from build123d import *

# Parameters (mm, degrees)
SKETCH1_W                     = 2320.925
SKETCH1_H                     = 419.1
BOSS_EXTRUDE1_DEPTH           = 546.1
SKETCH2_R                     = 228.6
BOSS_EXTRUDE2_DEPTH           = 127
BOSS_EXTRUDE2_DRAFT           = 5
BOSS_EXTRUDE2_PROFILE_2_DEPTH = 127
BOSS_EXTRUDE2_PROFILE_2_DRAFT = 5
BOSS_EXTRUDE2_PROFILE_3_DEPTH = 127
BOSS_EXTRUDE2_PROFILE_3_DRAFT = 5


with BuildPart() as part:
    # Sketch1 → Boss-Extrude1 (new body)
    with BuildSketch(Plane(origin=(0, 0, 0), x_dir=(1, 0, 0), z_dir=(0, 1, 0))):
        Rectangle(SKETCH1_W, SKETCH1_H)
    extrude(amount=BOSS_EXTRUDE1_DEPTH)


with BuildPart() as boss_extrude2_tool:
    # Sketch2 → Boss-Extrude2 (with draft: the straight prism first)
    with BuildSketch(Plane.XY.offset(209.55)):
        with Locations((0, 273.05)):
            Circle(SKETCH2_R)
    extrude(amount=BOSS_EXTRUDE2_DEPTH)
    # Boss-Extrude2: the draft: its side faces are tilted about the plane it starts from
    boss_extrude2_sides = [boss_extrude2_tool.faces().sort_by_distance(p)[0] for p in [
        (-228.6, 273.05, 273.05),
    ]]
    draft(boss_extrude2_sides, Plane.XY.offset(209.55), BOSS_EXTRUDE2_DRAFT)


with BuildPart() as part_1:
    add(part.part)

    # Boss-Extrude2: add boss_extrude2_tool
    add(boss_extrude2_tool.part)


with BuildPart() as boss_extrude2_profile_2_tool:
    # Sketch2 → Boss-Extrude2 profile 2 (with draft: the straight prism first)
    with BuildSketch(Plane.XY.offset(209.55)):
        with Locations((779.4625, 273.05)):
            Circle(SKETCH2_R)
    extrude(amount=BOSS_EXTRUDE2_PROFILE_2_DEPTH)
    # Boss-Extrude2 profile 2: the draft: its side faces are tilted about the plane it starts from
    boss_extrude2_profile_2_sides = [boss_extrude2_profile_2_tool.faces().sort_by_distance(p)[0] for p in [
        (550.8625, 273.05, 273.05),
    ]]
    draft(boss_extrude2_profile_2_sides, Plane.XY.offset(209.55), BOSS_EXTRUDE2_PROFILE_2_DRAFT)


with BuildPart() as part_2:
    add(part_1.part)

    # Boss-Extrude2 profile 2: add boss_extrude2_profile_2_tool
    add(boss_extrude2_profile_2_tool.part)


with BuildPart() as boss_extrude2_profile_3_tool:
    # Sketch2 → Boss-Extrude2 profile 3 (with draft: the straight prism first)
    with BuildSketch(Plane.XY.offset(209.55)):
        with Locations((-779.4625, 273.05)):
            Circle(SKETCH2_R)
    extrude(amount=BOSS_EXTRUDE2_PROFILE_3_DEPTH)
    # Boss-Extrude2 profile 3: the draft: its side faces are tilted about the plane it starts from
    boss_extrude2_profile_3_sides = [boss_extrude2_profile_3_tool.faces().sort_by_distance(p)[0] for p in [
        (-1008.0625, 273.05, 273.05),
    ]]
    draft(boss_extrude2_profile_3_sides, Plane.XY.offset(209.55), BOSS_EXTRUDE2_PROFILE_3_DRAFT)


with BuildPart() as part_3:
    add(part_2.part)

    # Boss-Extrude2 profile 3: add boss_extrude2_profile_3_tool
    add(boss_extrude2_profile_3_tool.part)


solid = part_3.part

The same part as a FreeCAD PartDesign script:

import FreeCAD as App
import Part
import Sketcher
Q = App.Units.Quantity


def faces_at(feature, points):
    """Names of the faces that lie closest to the given points."""
    faces = feature.Shape.Faces
    near = lambda p: min(range(len(faces)), key=lambda i: faces[i].distToShape(Part.Vertex(*p))[0])
    return sorted({f"Face{near(p) + 1}" for p in points})

doc = App.newDocument("Part")
params = doc.addObject("Spreadsheet::Sheet", "Params")
for row, (alias, value) in enumerate([
    ("sketch1_height", "16.5 in"),
    ("sketch1_width", "91.375 in"),
    ("pad1_length", "21.5 in"),
    ("sketch2_diameter", "18 in"),
    ("pad2_length", "5 in"),
    ("draft_angle", "5 deg"),
    ("sketch3_diameter", "18 in"),
    ("pad3_length", "5 in"),
    ("draft2_angle", "5 deg"),
    ("sketch4_diameter", "18 in"),
    ("pad4_length", "5 in"),
    ("draft3_angle", "5 deg"),
], start=1):
    params.set(f"A{row}", alias)
    params.set(f"B{row}", "=" + value)
    params.setAlias(f"B{row}", alias)

body = doc.addObject("PartDesign::Body", "Body")

# Sketch on XZ plane
sketch1 = body.newObject("Sketcher::SketchObject", "Sketch")
sketch1.AttachmentSupport = (doc.getObject("XZ_Plane"), [""])
sketch1.MapMode = "FlatFace"
sketch1.addGeometry(Part.LineSegment(App.Vector(-1160, -210, 0), App.Vector(-1160, 210, 0)), False)
sketch1.addGeometry(Part.LineSegment(App.Vector(-1160, 210, 0), App.Vector(1160, 210, 0)), False)
sketch1.addGeometry(Part.LineSegment(App.Vector(1160, 210, 0), App.Vector(1160, -210, 0)), False)
sketch1.addGeometry(Part.LineSegment(App.Vector(1160, -210, 0), App.Vector(-1160, -210, 0)), False)
sketch1.addConstraint(Sketcher.Constraint("Coincident", 0, 2, 1, 1))
sketch1.addConstraint(Sketcher.Constraint("Coincident", 1, 2, 2, 1))
sketch1.addConstraint(Sketcher.Constraint("Coincident", 2, 2, 3, 1))
sketch1.addConstraint(Sketcher.Constraint("Coincident", 3, 2, 0, 1))
sketch1.addConstraint(Sketcher.Constraint("Vertical", 0))
sketch1.addConstraint(Sketcher.Constraint("Horizontal", 1))
sketch1.addConstraint(Sketcher.Constraint("Vertical", 2))
sketch1.addConstraint(Sketcher.Constraint("Horizontal", 3))
sketch1.addConstraint(Sketcher.Constraint("Symmetric", 0, 2, 2, 2, -1, 1))
sketch1.addConstraint(Sketcher.Constraint("DistanceY", 0, 1, 0, 2, Q("16.5 in")))
sketch1.addConstraint(Sketcher.Constraint("DistanceX", 1, 1, 1, 2, Q("91.375 in")))
sketch1.setExpression("Constraints[9]", "Params.sketch1_height")
sketch1.setExpression("Constraints[10]", "Params.sketch1_width")
pad1 = body.newObject("PartDesign::Pad", "Pad")
pad1.Profile = sketch1
pad1.setExpression("Length", "Params.pad1_length")
pad1.Reversed = True
body2 = doc.addObject("PartDesign::Body", "Body001")

# Sketch on XY plane
sketch2 = body2.newObject("Sketcher::SketchObject", "Sketch001")
sketch2.AttachmentSupport = (doc.getObject("XY_Plane001"), [""])
sketch2.MapMode = "FlatFace"
sketch2.AttachmentOffset = App.Placement(App.Vector(0, 0, 8.25 * 25.4), App.Rotation())
sketch2.addGeometry(Part.Circle(App.Vector(0, 273, 0), App.Vector(0, 0, 1), 229), False)
sketch2.addConstraint(Sketcher.Constraint("PointOnObject", 0, 3, -2))
sketch2.addConstraint(Sketcher.Constraint("Diameter", 0, Q("18 in")))
sketch2.addConstraint(Sketcher.Constraint("DistanceY", -1, 1, 0, 3, Q("10.75 in")))
sketch2.setExpression("Constraints[1]", "Params.sketch2_diameter")
pad2 = body2.newObject("PartDesign::Pad", "Pad001")
pad2.Profile = sketch2
pad2.setExpression("Length", "Params.pad2_length")
doc.recompute()

datumplane = body2.newObject("PartDesign::Plane", "DatumPlane")
datumplane.AttachmentSupport = (doc.getObject("XY_Plane001"), [""])
datumplane.MapMode = "FlatFace"
datumplane.AttachmentOffset = App.Placement(App.Vector(0, 0, 8.25 * 25.4), App.Rotation())
draft = body2.newObject("PartDesign::Draft", "Draft")
draft.Base = (pad2, faces_at(pad2, [(-228.6, 273.05, 273.05)]))
draft.NeutralPlane = (datumplane, [""])
draft.setExpression("Angle", "Params.draft_angle")
draft.Reversed = False
doc.recompute()

boolean = body.newObject("PartDesign::Boolean", "Boolean")
boolean.Type = "Fuse"
boolean.addObjects([body2])
body3 = doc.addObject("PartDesign::Body", "Body002")

# Sketch on XY plane
sketch3 = body3.newObject("Sketcher::SketchObject", "Sketch002")
sketch3.AttachmentSupport = (doc.getObject("XY_Plane002"), [""])
sketch3.MapMode = "FlatFace"
sketch3.AttachmentOffset = App.Placement(App.Vector(0, 0, 8.25 * 25.4), App.Rotation())
sketch3.addGeometry(Part.Circle(App.Vector(779, 273, 0), App.Vector(0, 0, 1), 229), False)
sketch3.addConstraint(Sketcher.Constraint("Diameter", 0, Q("18 in")))
sketch3.addConstraint(Sketcher.Constraint("DistanceY", -1, 1, 0, 3, Q("10.75 in")))
sketch3.addConstraint(Sketcher.Constraint("DistanceX", -1, 1, 0, 3, Q("30.6875 in")))
sketch3.setExpression("Constraints[0]", "Params.sketch3_diameter")
pad3 = body3.newObject("PartDesign::Pad", "Pad002")
pad3.Profile = sketch3
pad3.setExpression("Length", "Params.pad3_length")
doc.recompute()

datumplane2 = body3.newObject("PartDesign::Plane", "DatumPlane001")
datumplane2.AttachmentSupport = (doc.getObject("XY_Plane002"), [""])
datumplane2.MapMode = "FlatFace"
datumplane2.AttachmentOffset = App.Placement(App.Vector(0, 0, 8.25 * 25.4), App.Rotation())
draft2 = body3.newObject("PartDesign::Draft", "Draft001")
draft2.Base = (pad3, faces_at(pad3, [(550.862, 273.05, 273.05)]))
draft2.NeutralPlane = (datumplane2, [""])
draft2.setExpression("Angle", "Params.draft2_angle")
draft2.Reversed = False
doc.recompute()

boolean2 = body.newObject("PartDesign::Boolean", "Boolean001")
boolean2.Type = "Fuse"
boolean2.addObjects([body3])
body4 = doc.addObject("PartDesign::Body", "Body003")

# Sketch on XY plane
sketch4 = body4.newObject("Sketcher::SketchObject", "Sketch003")
sketch4.AttachmentSupport = (doc.getObject("XY_Plane003"), [""])
sketch4.MapMode = "FlatFace"
sketch4.AttachmentOffset = App.Placement(App.Vector(0, 0, 8.25 * 25.4), App.Rotation())
sketch4.addGeometry(Part.Circle(App.Vector(-779, 273, 0), App.Vector(0, 0, 1), 229), False)
sketch4.addConstraint(Sketcher.Constraint("Diameter", 0, Q("18 in")))
sketch4.addConstraint(Sketcher.Constraint("DistanceY", -1, 1, 0, 3, Q("10.75 in")))
sketch4.addConstraint(Sketcher.Constraint("DistanceX", 0, 3, -1, 1, Q("30.6875 in")))
sketch4.setExpression("Constraints[0]", "Params.sketch4_diameter")
pad4 = body4.newObject("PartDesign::Pad", "Pad003")
pad4.Profile = sketch4
pad4.setExpression("Length", "Params.pad4_length")
doc.recompute()

datumplane3 = body4.newObject("PartDesign::Plane", "DatumPlane002")
datumplane3.AttachmentSupport = (doc.getObject("XY_Plane003"), [""])
datumplane3.MapMode = "FlatFace"
datumplane3.AttachmentOffset = App.Placement(App.Vector(0, 0, 8.25 * 25.4), App.Rotation())
draft3 = body4.newObject("PartDesign::Draft", "Draft002")
draft3.Base = (pad4, faces_at(pad4, [(-1008.062, 273.05, 273.05)]))
draft3.NeutralPlane = (datumplane3, [""])
draft3.setExpression("Angle", "Params.draft3_angle")
draft3.Reversed = False
doc.recompute()

boolean3 = body.newObject("PartDesign::Boolean", "Boolean002")
boolean3.Type = "Fuse"
boolean3.addObjects([body4])

doc.recompute()
